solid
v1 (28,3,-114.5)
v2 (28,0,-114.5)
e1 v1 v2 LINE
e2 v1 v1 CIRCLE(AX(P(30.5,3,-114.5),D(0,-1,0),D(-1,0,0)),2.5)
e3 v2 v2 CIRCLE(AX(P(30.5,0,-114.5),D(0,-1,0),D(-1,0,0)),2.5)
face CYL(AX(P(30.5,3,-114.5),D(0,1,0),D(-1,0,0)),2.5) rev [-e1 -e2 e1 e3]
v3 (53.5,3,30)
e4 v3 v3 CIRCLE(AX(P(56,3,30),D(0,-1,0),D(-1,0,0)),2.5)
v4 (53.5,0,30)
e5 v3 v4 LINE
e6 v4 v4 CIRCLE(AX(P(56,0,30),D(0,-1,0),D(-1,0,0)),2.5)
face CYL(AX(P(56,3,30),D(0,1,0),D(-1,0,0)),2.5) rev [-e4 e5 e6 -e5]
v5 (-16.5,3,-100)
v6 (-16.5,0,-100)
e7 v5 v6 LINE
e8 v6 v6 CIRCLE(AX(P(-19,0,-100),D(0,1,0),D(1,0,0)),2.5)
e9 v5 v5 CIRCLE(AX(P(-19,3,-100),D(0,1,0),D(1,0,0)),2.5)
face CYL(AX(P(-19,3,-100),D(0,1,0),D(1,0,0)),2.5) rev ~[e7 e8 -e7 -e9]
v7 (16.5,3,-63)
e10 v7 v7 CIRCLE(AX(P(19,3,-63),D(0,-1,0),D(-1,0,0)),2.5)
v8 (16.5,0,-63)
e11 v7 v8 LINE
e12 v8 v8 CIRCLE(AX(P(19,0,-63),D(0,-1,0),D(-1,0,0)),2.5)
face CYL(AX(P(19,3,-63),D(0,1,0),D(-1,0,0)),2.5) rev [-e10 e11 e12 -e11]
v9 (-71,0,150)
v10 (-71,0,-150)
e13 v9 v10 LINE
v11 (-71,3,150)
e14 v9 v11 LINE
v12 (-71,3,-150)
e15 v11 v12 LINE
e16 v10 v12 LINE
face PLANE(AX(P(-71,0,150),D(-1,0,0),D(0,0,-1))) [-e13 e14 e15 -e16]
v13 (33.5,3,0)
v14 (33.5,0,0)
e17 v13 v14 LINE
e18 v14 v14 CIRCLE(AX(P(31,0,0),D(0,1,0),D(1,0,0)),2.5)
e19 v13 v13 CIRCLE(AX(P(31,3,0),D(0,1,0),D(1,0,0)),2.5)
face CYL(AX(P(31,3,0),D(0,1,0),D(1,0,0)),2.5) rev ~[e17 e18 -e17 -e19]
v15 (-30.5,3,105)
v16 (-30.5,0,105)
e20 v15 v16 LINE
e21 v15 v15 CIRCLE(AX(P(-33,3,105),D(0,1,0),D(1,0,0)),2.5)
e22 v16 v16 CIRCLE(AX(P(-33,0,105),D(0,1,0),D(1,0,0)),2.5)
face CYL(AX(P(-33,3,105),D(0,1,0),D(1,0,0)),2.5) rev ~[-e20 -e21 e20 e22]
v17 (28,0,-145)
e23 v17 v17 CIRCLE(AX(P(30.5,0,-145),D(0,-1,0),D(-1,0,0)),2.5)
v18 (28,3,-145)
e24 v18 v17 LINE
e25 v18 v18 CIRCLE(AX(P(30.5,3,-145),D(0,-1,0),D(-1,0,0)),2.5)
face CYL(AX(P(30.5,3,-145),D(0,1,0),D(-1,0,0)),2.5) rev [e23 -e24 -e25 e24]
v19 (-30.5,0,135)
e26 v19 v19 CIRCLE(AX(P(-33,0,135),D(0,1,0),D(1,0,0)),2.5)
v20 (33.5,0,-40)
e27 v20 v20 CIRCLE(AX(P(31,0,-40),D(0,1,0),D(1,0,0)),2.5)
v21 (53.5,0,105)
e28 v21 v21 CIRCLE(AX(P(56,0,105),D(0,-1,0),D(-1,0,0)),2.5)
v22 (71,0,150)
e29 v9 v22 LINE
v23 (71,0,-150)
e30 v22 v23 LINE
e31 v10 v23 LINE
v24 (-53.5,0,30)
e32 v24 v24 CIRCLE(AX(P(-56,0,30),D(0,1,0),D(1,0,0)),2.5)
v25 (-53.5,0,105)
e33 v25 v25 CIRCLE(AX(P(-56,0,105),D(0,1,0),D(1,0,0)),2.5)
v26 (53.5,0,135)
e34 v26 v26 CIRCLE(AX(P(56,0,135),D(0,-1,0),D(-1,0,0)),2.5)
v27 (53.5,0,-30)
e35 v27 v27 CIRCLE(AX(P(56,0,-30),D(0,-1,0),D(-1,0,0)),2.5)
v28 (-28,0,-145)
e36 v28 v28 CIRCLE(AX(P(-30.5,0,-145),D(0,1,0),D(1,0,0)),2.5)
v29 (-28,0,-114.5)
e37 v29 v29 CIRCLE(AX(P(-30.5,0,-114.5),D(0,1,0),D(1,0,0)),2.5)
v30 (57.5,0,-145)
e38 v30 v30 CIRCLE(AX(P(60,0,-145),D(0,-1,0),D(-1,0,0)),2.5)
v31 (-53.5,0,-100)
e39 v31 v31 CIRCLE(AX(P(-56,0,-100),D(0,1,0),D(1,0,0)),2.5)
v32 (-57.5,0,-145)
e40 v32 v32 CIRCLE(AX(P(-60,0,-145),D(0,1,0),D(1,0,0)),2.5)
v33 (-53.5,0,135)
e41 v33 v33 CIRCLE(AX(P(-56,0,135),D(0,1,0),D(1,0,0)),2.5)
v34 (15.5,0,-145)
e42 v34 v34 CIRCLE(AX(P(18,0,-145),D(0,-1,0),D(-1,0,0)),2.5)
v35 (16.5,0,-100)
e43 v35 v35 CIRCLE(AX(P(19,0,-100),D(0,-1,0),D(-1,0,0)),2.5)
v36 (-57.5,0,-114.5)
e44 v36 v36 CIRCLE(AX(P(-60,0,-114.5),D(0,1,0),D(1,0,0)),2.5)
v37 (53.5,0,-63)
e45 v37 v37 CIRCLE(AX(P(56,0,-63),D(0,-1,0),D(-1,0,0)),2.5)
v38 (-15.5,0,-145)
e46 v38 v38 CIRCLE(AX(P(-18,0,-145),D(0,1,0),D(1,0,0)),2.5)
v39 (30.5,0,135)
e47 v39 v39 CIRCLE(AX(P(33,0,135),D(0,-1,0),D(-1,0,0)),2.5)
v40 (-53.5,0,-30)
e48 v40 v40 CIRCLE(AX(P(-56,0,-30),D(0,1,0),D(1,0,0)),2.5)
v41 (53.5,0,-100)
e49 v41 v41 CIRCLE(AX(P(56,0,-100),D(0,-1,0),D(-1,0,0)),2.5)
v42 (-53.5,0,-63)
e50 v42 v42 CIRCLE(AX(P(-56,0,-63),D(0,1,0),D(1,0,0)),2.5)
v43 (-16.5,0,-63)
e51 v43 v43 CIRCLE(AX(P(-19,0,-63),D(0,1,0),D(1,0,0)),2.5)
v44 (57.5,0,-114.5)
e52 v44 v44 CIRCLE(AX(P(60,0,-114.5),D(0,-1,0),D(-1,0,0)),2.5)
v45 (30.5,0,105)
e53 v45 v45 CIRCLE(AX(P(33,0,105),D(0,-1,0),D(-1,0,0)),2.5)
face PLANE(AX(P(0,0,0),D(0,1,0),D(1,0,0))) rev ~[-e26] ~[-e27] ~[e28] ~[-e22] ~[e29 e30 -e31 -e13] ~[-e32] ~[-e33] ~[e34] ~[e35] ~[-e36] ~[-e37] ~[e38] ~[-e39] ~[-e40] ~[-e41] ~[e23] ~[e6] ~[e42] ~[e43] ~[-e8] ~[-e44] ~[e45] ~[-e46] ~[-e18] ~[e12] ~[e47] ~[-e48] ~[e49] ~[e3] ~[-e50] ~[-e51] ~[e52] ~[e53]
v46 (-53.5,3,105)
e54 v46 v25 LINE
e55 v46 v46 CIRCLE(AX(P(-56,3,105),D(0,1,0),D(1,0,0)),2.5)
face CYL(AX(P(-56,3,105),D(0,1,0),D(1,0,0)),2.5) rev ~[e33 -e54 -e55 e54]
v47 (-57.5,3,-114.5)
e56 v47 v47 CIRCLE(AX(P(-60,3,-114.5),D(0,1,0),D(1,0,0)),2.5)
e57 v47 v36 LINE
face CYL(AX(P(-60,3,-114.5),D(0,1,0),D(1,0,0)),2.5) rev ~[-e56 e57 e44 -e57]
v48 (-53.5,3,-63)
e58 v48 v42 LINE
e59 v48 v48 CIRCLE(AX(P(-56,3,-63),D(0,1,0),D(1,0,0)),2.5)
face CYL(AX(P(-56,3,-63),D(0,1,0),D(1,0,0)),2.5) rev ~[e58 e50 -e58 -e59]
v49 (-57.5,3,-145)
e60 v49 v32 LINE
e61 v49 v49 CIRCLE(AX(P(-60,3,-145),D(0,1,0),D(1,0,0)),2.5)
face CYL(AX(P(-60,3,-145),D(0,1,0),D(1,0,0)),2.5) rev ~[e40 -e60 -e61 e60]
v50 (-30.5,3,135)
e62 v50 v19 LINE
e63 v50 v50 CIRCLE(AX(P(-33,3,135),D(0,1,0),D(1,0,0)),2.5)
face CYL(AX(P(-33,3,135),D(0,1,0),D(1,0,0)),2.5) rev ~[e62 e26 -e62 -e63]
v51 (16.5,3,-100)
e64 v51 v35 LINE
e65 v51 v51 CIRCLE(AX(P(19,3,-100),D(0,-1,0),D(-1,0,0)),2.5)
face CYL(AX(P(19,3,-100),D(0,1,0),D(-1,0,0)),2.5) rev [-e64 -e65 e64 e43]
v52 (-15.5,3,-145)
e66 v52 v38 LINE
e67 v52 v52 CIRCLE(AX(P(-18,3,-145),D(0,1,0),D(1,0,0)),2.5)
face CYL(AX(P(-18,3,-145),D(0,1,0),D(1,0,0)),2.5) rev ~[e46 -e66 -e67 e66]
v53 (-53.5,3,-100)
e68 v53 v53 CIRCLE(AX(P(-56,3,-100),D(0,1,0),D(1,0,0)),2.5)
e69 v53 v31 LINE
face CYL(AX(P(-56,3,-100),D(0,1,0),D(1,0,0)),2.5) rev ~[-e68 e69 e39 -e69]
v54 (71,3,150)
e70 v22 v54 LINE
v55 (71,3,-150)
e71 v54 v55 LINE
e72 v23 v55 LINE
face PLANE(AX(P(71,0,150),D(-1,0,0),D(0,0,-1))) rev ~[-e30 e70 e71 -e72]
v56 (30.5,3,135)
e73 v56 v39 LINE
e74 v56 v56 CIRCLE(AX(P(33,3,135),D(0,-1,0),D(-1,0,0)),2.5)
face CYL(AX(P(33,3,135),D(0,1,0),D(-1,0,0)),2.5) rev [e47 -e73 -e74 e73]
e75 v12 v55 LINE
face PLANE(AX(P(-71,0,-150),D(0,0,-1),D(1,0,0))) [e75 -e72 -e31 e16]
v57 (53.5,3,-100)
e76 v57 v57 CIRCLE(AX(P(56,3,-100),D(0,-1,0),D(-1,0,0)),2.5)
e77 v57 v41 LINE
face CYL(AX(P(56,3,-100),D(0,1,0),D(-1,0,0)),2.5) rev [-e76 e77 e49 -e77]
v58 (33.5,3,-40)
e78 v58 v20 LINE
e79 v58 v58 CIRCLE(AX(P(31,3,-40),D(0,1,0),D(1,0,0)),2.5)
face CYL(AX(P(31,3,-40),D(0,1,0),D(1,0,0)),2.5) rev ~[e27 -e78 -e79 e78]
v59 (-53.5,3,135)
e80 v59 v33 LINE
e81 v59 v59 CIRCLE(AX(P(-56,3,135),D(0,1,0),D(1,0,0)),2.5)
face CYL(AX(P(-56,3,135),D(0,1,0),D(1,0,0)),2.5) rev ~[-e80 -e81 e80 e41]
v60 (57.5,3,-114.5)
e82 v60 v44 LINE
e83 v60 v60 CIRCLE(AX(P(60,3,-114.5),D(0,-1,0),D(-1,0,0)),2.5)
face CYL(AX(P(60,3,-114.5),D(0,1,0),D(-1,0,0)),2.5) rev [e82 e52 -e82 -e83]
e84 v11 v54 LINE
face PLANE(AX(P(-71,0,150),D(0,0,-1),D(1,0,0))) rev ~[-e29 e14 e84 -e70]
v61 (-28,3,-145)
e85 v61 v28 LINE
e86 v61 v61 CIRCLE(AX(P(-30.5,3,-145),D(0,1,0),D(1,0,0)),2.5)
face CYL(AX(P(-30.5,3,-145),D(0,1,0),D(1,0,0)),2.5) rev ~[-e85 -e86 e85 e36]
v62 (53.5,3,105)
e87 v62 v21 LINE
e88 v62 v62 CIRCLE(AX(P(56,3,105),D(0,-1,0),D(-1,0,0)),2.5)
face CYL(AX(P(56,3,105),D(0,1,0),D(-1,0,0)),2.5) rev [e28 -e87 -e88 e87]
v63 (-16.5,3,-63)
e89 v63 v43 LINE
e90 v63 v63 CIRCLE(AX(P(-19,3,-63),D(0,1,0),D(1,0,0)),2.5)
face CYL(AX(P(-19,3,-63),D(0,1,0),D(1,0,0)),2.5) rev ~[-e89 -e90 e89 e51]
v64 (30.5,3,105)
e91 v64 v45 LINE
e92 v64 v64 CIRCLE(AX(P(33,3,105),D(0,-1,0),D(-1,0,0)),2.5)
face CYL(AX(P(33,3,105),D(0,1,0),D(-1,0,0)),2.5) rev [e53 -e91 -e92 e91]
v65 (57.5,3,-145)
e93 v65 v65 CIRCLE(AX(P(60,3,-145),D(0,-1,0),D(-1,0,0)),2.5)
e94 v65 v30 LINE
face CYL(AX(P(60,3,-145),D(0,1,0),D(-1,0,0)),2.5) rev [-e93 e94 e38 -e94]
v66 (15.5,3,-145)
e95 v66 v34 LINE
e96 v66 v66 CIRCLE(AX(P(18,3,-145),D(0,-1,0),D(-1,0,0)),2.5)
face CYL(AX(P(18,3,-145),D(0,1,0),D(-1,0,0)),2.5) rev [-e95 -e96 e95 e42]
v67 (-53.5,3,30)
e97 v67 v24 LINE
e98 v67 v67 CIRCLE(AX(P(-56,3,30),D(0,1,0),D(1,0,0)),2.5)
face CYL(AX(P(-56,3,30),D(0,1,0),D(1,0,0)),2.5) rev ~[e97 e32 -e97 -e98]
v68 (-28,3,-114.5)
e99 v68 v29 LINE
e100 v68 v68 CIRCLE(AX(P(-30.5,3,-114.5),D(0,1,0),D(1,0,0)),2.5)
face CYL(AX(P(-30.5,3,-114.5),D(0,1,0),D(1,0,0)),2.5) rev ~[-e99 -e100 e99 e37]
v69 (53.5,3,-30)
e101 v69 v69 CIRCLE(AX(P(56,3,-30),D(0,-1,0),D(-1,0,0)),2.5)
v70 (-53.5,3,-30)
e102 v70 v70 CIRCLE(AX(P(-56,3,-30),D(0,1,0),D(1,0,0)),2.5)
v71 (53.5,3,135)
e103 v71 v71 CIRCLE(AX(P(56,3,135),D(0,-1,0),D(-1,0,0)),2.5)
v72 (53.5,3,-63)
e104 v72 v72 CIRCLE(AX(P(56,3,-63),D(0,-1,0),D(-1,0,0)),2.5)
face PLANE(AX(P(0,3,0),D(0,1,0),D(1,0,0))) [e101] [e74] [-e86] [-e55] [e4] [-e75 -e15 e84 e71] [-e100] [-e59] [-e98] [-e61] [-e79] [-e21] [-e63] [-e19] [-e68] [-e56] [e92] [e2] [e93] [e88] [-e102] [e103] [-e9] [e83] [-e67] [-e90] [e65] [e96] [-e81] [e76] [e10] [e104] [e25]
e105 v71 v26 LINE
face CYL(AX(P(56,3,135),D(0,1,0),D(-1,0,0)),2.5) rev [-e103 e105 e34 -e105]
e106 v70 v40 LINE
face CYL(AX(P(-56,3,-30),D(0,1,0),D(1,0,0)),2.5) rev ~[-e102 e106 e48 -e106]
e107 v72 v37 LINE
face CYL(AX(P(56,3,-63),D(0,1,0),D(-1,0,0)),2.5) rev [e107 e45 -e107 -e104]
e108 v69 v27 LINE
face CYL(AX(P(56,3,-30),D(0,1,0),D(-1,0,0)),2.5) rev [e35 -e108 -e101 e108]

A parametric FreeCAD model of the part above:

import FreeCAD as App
import Part
import Sketcher
from FreeCAD import Vector
Q = App.Units.Quantity


def add_polygon(sketch, points):
    """Adds a closed chain of lines whose ends are joined by coincident constraints."""
    first, n = sketch.GeometryCount, len(points)
    for a, b in zip(points, points[1:] + points[:1]):
        sketch.addGeometry(Part.LineSegment(App.Vector(*a, 0), App.Vector(*b, 0)), False)
    for i in range(n):
        sketch.addConstraint(Sketcher.Constraint("Coincident", first + i, 2, first + (i + 1) % n, 1))

doc = App.newDocument("Part")
body = doc.addObject("PartDesign::Body", "Body")

# Sketch on XZ plane
sketch1 = doc.addObject("Sketcher::SketchObject", "Sketch")
body.addObject(sketch1)
sketch1.AttachmentSupport = (doc.XZ_Plane, [""])
sketch1.MapMode = "FlatFace"
add_polygon(sketch1, [(-71, -150), (-71, 150), (71, 150), (71, -150)])  # lines 0-3
sketch1.addConstraint(Sketcher.Constraint("Vertical", 0))
sketch1.addConstraint(Sketcher.Constraint("Horizontal", 1))
sketch1.addConstraint(Sketcher.Constraint("Vertical", 2))
sketch1.addConstraint(Sketcher.Constraint("Horizontal", 3))
sketch1.addConstraint(Sketcher.Constraint("Symmetric", 0, 2, 2, 2, -1, 1))
sketch1.addConstraint(Sketcher.Constraint("DistanceX", 1, 1, 1, 2, Q("142 mm")))
sketch1.addConstraint(Sketcher.Constraint("DistanceY", 0, 1, 0, 2, Q("300 mm")))
pad1 = doc.addObject("PartDesign::Pad", "Pad")
body.addObject(pad1)
pad1.Profile = sketch1
pad1.Length = 3
pad1.Reversed = True

# Sketch on XZ plane
sketch2 = doc.addObject("Sketcher::SketchObject", "Sketch001")
body.addObject(sketch2)
sketch2.AttachmentSupport = (doc.XZ_Plane, [""])
sketch2.MapMode = "FlatFace"
sketch2.AttachmentOffset = App.Placement(Vector(0, 0, -3), App.Rotation())
sketch2.addGeometry(Part.Circle(Vector(-60, -114.5, 0), Vector(0, 0, 1), 2.5), False)
sketch2.addGeometry(Part.Circle(Vector(-60, -145, 0), Vector(0, 0, 1), 2.5), False)
sketch2.addGeometry(Part.Circle(Vector(-30.5, -145, 0), Vector(0, 0, 1), 2.5), False)
sketch2.addGeometry(Part.Circle(Vector(-30.5, -114.5, 0), Vector(0, 0, 1), 2.5), False)
sketch2.addGeometry(Part.Circle(Vector(-18, -145, 0), Vector(0, 0, 1), 2.5), False)
sketch2.addConstraint(Sketcher.Constraint("Equal", 0, 1))
sketch2.addConstraint(Sketcher.Constraint("Equal", 1, 2))
sketch2.addConstraint(Sketcher.Constraint("Equal", 2, 3))
sketch2.addConstraint(Sketcher.Constraint("Equal", 3, 4))
sketch2.addConstraint(Sketcher.Constraint("Horizontal", 1, 3, 2, 3))
sketch2.addConstraint(Sketcher.Constraint("Horizontal", 0, 3, 3, 3))
sketch2.addConstraint(Sketcher.Constraint("Horizontal", 2, 3, 4, 3))
sketch2.addConstraint(Sketcher.Constraint("Vertical", 0, 3, 1, 3))
sketch2.addConstraint(Sketcher.Constraint("Vertical", 2, 3, 3, 3))
sketch2.addConstraint(Sketcher.Constraint("Diameter", 0, Q("5 mm")))
sketch2.addConstraint(Sketcher.Constraint("DistanceX", 0, 3, -1, 1, Q("60 mm")))
sketch2.addConstraint(Sketcher.Constraint("DistanceY", 1, 3, -1, 1, Q("145 mm")))
sketch2.addConstraint(Sketcher.Constraint("DistanceX", 4, 3, -1, 1, Q("18 mm")))
sketch2.addConstraint(Sketcher.Constraint("DistanceY", 0, 3, -1, 1, Q("114.5 mm")))
sketch2.addConstraint(Sketcher.Constraint("DistanceX", 2, 3, -1, 1, Q("30.5 mm")))
pocket1 = doc.addObject("PartDesign::Pocket", "Pocket")
body.addObject(pocket1)
pocket1.Profile = sketch2
pocket1.Length = 3
pocket1.Reversed = True
doc.recompute()

mirrored = doc.addObject("PartDesign::Mirrored", "Mirrored")
body.addObject(mirrored)
mirrored.Originals = [pocket1]
mirrored.MirrorPlane = (doc.YZ_Plane, [""])
body.Tip = mirrored

# Sketch on XZ plane
sketch3 = doc.addObject("Sketcher::SketchObject", "Sketch002")
body.addObject(sketch3)
sketch3.AttachmentSupport = (doc.XZ_Plane, [""])
sketch3.MapMode = "FlatFace"
sketch3.AttachmentOffset = App.Placement(Vector(0, 0, -3), App.Rotation())
sketch3.addGeometry(Part.Circle(Vector(-56, -100, 0), Vector(0, 0, 1), 2.5), False)
sketch3.addGeometry(Part.Circle(Vector(-19, -100, 0), Vector(0, 0, 1), 2.5), False)
sketch3.addGeometry(Part.Circle(Vector(-56, -63, 0), Vector(0, 0, 1), 2.5), False)
sketch3.addGeometry(Part.Circle(Vector(-19, -63, 0), Vector(0, 0, 1), 2.5), False)
sketch3.addConstraint(Sketcher.Constraint("Equal", 0, 1))
sketch3.addConstraint(Sketcher.Constraint("Equal", 1, 2))
sketch3.addConstraint(Sketcher.Constraint("Equal", 2, 3))
sketch3.addConstraint(Sketcher.Constraint("Horizontal", 0, 3, 1, 3))
sketch3.addConstraint(Sketcher.Constraint("Horizontal", 2, 3, 3, 3))
sketch3.addConstraint(Sketcher.Constraint("Vertical", 0, 3, 2, 3))
sketch3.addConstraint(Sketcher.Constraint("Vertical", 1, 3, 3, 3))
sketch3.addConstraint(Sketcher.Constraint("Diameter", 0, Q("5 mm")))
sketch3.addConstraint(Sketcher.Constraint("DistanceX", 0, 3, -1, 1, Q("56 mm")))
sketch3.addConstraint(Sketcher.Constraint("DistanceY", 0, 3, -1, 1, Q("100 mm")))
sketch3.addConstraint(Sketcher.Constraint("DistanceX", 1, 3, -1, 1, Q("19 mm")))
sketch3.addConstraint(Sketcher.Constraint("DistanceY", 2, 3, -1, 1, Q("63 mm")))
pocket2 = doc.addObject("PartDesign::Pocket", "Pocket001")
body.addObject(pocket2)
pocket2.Profile = sketch3
pocket2.Length = 3
pocket2.Reversed = True
doc.recompute()

mirrored2 = doc.addObject("PartDesign::Mirrored", "Mirrored001")
body.addObject(mirrored2)
mirrored2.Originals = [pocket2]
mirrored2.MirrorPlane = (doc.YZ_Plane, [""])
body.Tip = mirrored2

# Sketch on XZ plane
sketch4 = doc.addObject("Sketcher::SketchObject", "Sketch003")
body.addObject(sketch4)
sketch4.AttachmentSupport = (doc.XZ_Plane, [""])
sketch4.MapMode = "FlatFace"
sketch4.AttachmentOffset = App.Placement(Vector(0, 0, -3), App.Rotation())
sketch4.addGeometry(Part.Circle(Vector(31, -40, 0), Vector(0, 0, 1), 2.5), False)
sketch4.addGeometry(Part.Circle(Vector(31, 0, 0), Vector(0, 0, 1), 2.5), False)
sketch4.addConstraint(Sketcher.Constraint("Equal", 0, 1))
sketch4.addConstraint(Sketcher.Constraint("PointOnObject", 1, 3, -1))
sketch4.addConstraint(Sketcher.Constraint("Vertical", 0, 3, 1, 3))
sketch4.addConstraint(Sketcher.Constraint("Diameter", 0, Q("5 mm")))
sketch4.addConstraint(Sketcher.Constraint("DistanceX", -1, 1, 0, 3, Q("31 mm")))
sketch4.addConstraint(Sketcher.Constraint("DistanceY", 0, 3, -1, 1, Q("40 mm")))
pocket3 = doc.addObject("PartDesign::Pocket", "Pocket002")
body.addObject(pocket3)
pocket3.Profile = sketch4
pocket3.Length = 3
pocket3.Reversed = True

# Sketch on XZ plane
sketch5 = doc.addObject("Sketcher::SketchObject", "Sketch004")
body.addObject(sketch5)
sketch5.AttachmentSupport = (doc.XZ_Plane, [""])
sketch5.MapMode = "FlatFace"
sketch5.AttachmentOffset = App.Placement(Vector(0, 0, -3), App.Rotation())
sketch5.addGeometry(Part.Circle(Vector(-56, 30, 0), Vector(0, 0, 1), 2.5), False)
sketch5.addGeometry(Part.Circle(Vector(-56, -30, 0), Vector(0, 0, 1), 2.5), False)
sketch5.addConstraint(Sketcher.Constraint("Equal", 0, 1))
sketch5.addConstraint(Sketcher.Constraint("Symmetric", 0, 3, 1, 3, -1))
sketch5.addConstraint(Sketcher.Constraint("Diameter", 0, Q("5 mm")))
sketch5.addConstraint(Sketcher.Constraint("DistanceX", 0, 3, -1, 1, Q("56 mm")))
sketch5.addConstraint(Sketcher.Constraint("DistanceY", -1, 1, 0, 3, Q("30 mm")))
pocket4 = doc.addObject("PartDesign::Pocket", "Pocket003")
body.addObject(pocket4)
pocket4.Profile = sketch5
pocket4.Length = 3
pocket4.Reversed = True
doc.recompute()

mirrored3 = doc.addObject("PartDesign::Mirrored", "Mirrored002")
body.addObject(mirrored3)
mirrored3.Originals = [pocket4]
mirrored3.MirrorPlane = (doc.YZ_Plane, [""])
body.Tip = mirrored3

# Sketch on XZ plane
sketch6 = doc.addObject("Sketcher::SketchObject", "Sketch005")
body.addObject(sketch6)
sketch6.AttachmentSupport = (doc.XZ_Plane, [""])
sketch6.MapMode = "FlatFace"
sketch6.AttachmentOffset = App.Placement(Vector(0, 0, -3), App.Rotation())
sketch6.addGeometry(Part.Circle(Vector(-33, 105, 0), Vector(0, 0, 1), 2.5), False)
sketch6.addGeometry(Part.Circle(Vector(-33, 135, 0), Vector(0, 0, 1), 2.5), False)
sketch6.addGeometry(Part.Circle(Vector(-56, 135, 0), Vector(0, 0, 1), 2.5), False)
sketch6.addGeometry(Part.Circle(Vector(-56, 105, 0), Vector(0, 0, 1), 2.5), False)
sketch6.addConstraint(Sketcher.Constraint("Equal", 0, 1))
sketch6.addConstraint(Sketcher.Constraint("Equal", 1, 2))
sketch6.addConstraint(Sketcher.Constraint("Equal", 2, 3))
sketch6.addConstraint(Sketcher.Constraint("Horizontal", 1, 3, 2, 3))
sketch6.addConstraint(Sketcher.Constraint("Horizontal", 0, 3, 3, 3))
sketch6.addConstraint(Sketcher.Constraint("Vertical", 0, 3, 1, 3))
sketch6.addConstraint(Sketcher.Constraint("Vertical", 2, 3, 3, 3))
sketch6.addConstraint(Sketcher.Constraint("Diameter", 0, Q("5 mm")))
sketch6.addConstraint(Sketcher.Constraint("DistanceX", 0, 3, -1, 1, Q("33 mm")))
sketch6.addConstraint(Sketcher.Constraint("DistanceY", -1, 1, 0, 3, Q("105 mm")))
sketch6.addConstraint(Sketcher.Constraint("DistanceY", -1, 1, 1, 3, Q("135 mm")))
sketch6.addConstraint(Sketcher.Constraint("DistanceX", 2, 3, -1, 1, Q("56 mm")))
pocket5 = doc.addObject("PartDesign::Pocket", "Pocket004")
body.addObject(pocket5)
pocket5.Profile = sketch6
pocket5.Length = 3
pocket5.Reversed = True
doc.recompute()

mirrored4 = doc.addObject("PartDesign::Mirrored", "Mirrored003")
body.addObject(mirrored4)
mirrored4.Originals = [pocket5]
mirrored4.MirrorPlane = (doc.YZ_Plane, [""])
body.Tip = mirrored4

doc.recompute()
